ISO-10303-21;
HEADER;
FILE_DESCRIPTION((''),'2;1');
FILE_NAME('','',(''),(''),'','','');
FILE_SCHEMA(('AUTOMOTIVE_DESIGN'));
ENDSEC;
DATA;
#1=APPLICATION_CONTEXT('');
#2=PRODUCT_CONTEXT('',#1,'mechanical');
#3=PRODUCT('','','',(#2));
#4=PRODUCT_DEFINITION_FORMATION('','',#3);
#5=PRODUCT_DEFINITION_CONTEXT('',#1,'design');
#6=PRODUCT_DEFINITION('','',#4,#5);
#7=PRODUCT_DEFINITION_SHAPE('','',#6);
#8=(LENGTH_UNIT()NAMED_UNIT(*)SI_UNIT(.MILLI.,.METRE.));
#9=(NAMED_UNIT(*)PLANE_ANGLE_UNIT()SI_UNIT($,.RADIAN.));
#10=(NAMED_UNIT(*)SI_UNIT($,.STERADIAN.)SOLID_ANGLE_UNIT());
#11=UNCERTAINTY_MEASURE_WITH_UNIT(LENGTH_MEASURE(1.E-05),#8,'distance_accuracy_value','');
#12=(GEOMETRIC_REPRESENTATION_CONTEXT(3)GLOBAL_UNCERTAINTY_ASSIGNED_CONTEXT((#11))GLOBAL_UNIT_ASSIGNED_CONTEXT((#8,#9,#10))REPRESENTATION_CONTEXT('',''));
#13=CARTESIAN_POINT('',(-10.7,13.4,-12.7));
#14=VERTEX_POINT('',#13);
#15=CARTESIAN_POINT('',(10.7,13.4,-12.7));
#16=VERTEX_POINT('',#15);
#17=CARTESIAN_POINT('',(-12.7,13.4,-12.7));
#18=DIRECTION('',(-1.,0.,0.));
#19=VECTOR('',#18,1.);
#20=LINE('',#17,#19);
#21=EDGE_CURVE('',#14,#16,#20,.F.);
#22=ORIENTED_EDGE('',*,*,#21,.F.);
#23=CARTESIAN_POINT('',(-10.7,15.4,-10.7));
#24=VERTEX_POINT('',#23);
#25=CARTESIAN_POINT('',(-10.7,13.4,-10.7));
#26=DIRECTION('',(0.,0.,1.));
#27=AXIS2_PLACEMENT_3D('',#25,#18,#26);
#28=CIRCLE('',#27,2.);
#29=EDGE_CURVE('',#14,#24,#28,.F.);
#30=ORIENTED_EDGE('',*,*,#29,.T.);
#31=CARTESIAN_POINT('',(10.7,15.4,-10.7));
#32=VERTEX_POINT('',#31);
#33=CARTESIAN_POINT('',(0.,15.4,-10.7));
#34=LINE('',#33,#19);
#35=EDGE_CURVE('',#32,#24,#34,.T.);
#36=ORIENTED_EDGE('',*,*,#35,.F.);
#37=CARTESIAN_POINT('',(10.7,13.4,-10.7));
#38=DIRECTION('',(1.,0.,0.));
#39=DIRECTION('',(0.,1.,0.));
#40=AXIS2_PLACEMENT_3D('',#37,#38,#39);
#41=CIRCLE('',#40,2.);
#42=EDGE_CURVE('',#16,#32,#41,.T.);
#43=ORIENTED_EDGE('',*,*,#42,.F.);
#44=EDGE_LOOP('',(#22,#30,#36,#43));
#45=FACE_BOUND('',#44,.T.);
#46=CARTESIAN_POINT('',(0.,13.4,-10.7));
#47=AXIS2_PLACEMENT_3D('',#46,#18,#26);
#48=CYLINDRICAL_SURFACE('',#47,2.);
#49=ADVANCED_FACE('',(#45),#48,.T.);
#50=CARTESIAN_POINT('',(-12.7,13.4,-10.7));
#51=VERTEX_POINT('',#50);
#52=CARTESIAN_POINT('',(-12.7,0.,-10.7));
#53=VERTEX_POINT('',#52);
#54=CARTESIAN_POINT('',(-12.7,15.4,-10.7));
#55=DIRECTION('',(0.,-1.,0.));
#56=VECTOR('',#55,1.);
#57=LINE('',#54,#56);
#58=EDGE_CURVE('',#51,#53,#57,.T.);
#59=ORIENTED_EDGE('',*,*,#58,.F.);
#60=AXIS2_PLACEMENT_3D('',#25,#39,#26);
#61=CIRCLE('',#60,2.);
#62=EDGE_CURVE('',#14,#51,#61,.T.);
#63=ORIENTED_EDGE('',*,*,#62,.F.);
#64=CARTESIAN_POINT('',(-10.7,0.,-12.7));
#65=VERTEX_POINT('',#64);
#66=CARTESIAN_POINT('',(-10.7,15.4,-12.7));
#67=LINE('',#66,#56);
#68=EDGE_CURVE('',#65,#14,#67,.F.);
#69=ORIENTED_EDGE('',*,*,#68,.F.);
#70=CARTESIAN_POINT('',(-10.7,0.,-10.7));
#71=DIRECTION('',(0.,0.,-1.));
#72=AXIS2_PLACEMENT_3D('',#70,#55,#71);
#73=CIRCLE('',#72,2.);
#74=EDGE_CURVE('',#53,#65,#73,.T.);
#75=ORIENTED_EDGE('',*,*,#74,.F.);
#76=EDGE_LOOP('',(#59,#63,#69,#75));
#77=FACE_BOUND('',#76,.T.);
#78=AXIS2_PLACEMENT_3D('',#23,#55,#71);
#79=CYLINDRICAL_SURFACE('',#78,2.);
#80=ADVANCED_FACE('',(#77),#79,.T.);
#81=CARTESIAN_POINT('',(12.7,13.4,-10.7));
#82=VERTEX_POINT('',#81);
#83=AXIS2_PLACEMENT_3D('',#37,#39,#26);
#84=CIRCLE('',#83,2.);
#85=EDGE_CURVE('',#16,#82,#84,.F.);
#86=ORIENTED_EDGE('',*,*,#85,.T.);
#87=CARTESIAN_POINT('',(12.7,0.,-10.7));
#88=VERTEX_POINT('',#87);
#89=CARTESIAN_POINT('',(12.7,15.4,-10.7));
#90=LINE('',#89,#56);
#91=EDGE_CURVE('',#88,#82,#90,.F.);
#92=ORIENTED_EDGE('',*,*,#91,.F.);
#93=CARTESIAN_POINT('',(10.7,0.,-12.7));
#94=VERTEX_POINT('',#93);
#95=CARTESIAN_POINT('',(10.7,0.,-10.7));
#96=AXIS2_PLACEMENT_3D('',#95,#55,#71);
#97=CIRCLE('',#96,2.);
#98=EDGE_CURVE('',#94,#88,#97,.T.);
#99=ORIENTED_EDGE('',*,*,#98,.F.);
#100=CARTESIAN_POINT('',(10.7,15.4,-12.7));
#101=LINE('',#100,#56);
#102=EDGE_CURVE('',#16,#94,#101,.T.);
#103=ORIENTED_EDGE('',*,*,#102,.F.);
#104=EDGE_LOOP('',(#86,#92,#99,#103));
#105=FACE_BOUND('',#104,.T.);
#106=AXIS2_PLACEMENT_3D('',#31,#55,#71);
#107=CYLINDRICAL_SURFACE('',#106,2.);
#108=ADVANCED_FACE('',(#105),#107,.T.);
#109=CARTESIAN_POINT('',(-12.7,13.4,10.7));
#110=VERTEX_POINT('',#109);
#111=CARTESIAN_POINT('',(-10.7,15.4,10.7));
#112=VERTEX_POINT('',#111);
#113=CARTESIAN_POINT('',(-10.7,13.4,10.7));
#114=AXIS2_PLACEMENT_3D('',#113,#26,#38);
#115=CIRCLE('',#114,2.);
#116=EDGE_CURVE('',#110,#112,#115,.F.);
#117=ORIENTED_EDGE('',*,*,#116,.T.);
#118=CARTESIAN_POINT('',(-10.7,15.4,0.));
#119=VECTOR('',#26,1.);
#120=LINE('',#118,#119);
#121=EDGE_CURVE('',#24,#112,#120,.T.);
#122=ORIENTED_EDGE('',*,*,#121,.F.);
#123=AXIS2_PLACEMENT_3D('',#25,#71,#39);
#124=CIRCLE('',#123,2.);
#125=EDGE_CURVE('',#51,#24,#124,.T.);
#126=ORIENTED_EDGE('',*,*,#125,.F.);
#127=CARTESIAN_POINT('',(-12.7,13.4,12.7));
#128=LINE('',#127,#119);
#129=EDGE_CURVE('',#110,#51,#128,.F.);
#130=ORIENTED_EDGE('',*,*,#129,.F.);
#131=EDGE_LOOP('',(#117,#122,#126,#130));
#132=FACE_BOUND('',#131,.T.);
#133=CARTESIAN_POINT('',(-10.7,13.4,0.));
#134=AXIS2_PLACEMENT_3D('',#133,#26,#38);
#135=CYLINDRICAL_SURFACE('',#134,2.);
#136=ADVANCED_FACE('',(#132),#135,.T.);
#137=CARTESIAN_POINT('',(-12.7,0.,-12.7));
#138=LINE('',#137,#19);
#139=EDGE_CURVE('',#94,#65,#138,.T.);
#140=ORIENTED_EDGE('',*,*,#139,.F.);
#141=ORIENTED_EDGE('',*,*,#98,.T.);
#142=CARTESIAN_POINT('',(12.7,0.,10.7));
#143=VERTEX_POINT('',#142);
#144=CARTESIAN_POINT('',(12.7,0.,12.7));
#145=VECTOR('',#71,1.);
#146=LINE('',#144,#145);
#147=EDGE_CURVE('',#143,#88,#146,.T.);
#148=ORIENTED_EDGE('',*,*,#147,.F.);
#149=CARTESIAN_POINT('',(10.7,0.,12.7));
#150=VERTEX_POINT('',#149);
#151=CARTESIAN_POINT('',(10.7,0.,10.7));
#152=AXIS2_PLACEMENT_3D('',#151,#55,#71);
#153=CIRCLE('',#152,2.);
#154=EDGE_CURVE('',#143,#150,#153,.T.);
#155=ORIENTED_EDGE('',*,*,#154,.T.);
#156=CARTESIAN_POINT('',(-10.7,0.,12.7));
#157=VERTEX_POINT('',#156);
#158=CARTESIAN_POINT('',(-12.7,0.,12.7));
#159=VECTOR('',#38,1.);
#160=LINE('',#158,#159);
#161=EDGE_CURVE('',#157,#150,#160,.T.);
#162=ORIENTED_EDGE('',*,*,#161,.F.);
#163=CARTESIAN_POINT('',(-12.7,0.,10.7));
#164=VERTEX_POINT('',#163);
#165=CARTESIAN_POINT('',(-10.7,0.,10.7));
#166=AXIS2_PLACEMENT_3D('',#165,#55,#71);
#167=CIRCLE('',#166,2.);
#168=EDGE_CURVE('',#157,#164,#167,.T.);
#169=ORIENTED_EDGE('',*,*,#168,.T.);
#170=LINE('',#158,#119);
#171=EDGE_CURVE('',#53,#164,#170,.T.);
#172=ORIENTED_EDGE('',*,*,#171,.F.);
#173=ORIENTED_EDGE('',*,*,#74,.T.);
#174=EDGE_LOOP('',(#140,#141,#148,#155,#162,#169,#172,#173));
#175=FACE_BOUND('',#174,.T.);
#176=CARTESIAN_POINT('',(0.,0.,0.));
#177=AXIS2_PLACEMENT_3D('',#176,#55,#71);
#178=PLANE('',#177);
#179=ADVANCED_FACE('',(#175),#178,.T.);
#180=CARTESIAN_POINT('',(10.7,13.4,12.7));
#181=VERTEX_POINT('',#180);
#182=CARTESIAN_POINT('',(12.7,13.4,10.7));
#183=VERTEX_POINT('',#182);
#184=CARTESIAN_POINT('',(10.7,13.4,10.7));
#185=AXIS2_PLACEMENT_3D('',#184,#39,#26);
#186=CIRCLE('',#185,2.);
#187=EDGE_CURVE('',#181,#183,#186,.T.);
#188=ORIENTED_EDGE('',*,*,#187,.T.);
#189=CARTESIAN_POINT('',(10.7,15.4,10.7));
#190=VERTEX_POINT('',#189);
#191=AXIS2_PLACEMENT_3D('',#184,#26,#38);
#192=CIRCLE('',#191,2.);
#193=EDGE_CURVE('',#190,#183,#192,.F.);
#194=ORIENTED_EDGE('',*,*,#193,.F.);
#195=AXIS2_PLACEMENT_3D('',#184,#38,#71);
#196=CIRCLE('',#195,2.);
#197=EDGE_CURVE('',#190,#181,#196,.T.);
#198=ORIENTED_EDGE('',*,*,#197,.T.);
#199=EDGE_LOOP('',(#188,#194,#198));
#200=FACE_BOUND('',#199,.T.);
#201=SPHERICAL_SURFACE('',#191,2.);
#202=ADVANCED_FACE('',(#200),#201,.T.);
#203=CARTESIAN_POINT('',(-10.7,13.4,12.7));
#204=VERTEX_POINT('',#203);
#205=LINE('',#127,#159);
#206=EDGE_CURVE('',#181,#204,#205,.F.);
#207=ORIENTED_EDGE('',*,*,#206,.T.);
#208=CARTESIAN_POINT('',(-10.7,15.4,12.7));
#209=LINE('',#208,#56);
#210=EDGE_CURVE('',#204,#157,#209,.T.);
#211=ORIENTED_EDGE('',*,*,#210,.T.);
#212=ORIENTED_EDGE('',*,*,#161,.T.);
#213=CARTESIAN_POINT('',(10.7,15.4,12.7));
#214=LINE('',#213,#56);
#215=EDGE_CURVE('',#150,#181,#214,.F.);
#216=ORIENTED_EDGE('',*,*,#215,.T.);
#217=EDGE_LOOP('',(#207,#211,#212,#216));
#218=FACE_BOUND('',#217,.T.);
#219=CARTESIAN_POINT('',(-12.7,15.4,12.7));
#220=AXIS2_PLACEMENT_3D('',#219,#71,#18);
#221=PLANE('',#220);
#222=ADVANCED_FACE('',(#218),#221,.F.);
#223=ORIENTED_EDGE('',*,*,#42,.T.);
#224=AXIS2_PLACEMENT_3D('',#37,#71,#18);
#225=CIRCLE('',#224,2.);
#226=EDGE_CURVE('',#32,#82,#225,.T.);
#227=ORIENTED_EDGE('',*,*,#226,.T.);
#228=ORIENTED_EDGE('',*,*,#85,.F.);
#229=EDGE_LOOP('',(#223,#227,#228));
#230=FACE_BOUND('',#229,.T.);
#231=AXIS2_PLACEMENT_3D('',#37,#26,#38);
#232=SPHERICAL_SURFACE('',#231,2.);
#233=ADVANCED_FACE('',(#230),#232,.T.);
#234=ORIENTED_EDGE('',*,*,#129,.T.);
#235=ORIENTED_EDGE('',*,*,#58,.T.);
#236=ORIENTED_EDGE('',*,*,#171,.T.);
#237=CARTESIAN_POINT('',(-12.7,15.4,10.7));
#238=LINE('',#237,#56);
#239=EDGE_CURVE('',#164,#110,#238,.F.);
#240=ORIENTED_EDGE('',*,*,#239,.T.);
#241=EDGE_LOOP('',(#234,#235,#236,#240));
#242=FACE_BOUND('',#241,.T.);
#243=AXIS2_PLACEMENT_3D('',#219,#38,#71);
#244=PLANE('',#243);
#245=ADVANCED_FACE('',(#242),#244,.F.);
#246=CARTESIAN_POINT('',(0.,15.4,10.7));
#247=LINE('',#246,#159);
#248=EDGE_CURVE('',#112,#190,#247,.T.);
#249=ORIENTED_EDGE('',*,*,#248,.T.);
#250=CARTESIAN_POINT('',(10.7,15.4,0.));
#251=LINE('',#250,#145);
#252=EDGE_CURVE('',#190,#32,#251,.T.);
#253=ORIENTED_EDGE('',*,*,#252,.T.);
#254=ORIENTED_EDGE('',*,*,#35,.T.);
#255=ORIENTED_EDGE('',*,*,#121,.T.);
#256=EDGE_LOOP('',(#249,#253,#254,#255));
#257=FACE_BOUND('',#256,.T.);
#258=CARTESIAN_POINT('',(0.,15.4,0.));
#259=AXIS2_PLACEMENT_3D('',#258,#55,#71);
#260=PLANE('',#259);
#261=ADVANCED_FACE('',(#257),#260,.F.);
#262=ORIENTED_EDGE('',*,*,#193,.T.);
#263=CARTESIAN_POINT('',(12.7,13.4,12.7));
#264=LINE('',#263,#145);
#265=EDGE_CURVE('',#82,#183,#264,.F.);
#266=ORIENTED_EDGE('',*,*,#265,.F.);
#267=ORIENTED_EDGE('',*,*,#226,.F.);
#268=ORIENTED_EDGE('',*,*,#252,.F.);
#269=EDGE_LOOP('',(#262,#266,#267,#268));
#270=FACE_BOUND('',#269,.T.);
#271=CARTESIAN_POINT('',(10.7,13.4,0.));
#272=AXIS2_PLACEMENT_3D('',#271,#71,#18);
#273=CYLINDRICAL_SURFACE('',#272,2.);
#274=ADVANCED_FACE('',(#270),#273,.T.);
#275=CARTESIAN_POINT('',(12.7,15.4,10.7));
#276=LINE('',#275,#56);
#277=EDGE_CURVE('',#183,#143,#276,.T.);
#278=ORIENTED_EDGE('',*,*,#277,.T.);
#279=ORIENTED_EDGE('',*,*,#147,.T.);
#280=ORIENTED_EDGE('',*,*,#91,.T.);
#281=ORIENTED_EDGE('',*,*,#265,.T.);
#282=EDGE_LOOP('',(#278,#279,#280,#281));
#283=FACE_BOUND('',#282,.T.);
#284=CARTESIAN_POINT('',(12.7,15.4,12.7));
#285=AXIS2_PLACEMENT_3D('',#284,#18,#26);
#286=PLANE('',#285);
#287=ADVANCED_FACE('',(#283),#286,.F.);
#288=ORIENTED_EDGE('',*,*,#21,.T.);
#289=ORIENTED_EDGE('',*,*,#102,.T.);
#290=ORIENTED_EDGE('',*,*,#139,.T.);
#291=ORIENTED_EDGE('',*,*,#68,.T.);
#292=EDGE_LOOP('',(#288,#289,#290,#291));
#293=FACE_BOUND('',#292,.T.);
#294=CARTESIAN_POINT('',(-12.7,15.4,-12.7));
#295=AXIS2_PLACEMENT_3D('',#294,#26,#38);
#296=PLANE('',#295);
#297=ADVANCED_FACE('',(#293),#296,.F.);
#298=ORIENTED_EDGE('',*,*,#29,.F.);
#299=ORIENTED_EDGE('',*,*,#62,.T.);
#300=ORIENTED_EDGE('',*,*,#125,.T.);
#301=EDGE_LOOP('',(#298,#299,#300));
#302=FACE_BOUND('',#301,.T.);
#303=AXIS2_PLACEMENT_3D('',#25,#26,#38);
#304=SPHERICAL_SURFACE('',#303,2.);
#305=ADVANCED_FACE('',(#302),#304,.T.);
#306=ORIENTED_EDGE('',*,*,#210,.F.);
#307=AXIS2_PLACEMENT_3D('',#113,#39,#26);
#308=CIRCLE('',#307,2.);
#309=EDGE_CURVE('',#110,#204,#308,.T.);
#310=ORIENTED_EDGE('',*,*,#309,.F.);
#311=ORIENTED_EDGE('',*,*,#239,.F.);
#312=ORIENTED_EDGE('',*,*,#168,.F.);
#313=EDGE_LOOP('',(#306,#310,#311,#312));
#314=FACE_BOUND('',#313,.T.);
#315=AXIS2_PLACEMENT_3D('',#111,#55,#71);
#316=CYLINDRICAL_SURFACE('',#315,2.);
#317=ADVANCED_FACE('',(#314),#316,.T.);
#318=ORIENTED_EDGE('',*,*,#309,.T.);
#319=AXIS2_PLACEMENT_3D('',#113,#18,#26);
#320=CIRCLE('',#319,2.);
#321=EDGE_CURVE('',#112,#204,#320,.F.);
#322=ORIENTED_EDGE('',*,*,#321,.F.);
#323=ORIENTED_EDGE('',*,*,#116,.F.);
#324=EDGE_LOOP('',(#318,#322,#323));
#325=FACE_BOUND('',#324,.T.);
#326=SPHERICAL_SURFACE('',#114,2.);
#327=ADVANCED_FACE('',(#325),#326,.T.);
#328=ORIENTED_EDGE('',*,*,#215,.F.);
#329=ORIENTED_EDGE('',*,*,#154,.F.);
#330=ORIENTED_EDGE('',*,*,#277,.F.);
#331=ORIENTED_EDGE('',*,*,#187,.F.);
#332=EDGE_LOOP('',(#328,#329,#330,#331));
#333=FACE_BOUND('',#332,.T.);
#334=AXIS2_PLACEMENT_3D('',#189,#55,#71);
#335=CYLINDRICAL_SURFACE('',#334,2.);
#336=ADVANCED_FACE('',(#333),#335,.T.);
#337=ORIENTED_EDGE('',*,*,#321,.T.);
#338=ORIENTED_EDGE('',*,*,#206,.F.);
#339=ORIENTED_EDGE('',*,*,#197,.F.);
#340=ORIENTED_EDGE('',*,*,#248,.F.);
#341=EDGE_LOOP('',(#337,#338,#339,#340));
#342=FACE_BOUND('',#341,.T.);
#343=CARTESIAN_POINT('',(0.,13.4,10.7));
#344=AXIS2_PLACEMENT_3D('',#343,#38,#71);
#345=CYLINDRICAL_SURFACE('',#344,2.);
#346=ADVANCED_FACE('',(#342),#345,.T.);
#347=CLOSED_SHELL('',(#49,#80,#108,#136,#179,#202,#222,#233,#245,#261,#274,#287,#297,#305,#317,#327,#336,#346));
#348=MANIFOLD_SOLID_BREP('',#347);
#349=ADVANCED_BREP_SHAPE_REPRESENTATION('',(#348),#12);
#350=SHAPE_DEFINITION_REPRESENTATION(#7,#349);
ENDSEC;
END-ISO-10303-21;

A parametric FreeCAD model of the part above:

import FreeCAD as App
import Part
import Sketcher


def edges_at(feature, points):
    """Names of the edges that pass closest to the given points."""
    edges = feature.Shape.Edges
    near = lambda p: min(range(len(edges)), key=lambda i: edges[i].distToShape(Part.Vertex(*p))[0])
    return sorted({f"Edge{near(p) + 1}" for p in points})

doc = App.newDocument("Part")
body = doc.addObject("PartDesign::Body", "Body")

# Sketch on XZ plane
sketch1 = body.newObject("Sketcher::SketchObject", "Sketch")
sketch1.AttachmentSupport = (doc.getObject("XZ_Plane"), [""])
sketch1.MapMode = "FlatFace"
sketch1.addGeometry([
    Part.LineSegment(App.Vector(-13, -13, 0), App.Vector(-13, 13, 0)),
    Part.LineSegment(App.Vector(-13, 13, 0), App.Vector(13, 13, 0)),
    Part.LineSegment(App.Vector(13, 13, 0), App.Vector(13, -13, 0)),
    Part.LineSegment(App.Vector(13, -13, 0), App.Vector(-13, -13, 0)),
], False)
sketch1.addConstraint([
    Sketcher.Constraint("Coincident", 0, 2, 1, 1),
    Sketcher.Constraint("Coincident", 1, 2, 2, 1),
    Sketcher.Constraint("Coincident", 2, 2, 3, 1),
    Sketcher.Constraint("Coincident", 3, 2, 0, 1),
    Sketcher.Constraint("Vertical", 0),
    Sketcher.Constraint("Horizontal", 1),
    Sketcher.Constraint("Vertical", 2),
    Sketcher.Constraint("Horizontal", 3),
    Sketcher.Constraint("Symmetric", 0, 2, 2, 2, -1, 1),
    Sketcher.Constraint("Equal", 3, 0),
    Sketcher.Constraint("DistanceX", 1, 1, 1, 2, 25.4),
])
pad1 = body.newObject("PartDesign::Pad", "Pad")
pad1.Profile = sketch1
pad1.Length = 15.4
pad1.Reversed = True
doc.recompute()

fillet = body.newObject("PartDesign::Fillet", "Fillet")
fillet.Base = (pad1, edges_at(pad1, [
    (-12.7, 15.4, 0),
    (0, 15.4, 12.7),
    (12.7, 15.4, 0),
    (0, 15.4, -12.7),
    (12.7, 7.7, 12.7),
    (-12.7, 7.7, 12.7),
    (-12.7, 7.7, -12.7),
    (12.7, 7.7, -12.7),
]))
fillet.Radius = 2

doc.recompute()
